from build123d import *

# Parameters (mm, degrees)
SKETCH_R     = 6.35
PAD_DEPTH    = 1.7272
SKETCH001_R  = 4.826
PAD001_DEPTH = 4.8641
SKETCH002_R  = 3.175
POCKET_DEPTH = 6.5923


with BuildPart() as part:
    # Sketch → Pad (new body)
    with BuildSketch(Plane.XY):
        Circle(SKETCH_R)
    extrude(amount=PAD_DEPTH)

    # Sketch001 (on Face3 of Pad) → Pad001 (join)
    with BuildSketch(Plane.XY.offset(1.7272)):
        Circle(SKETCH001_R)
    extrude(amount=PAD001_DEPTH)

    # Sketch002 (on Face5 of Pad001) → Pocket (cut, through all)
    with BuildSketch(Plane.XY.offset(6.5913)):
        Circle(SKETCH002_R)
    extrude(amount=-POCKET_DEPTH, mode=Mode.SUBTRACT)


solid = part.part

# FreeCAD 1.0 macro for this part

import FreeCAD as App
import Part
import Sketcher
Q = App.Units.Quantity

doc = App.newDocument("Part")
body = doc.addObject("PartDesign::Body", "Body")

sketch1 = body.newObject("Sketcher::SketchObject", "Sketch")
sketch1.AttachmentSupport = (doc.getObject("XY_Plane"), [""])
sketch1.MapMode = "FlatFace"
sketch1.addGeometry(Part.Circle(App.Vector(0, 0, 0), App.Vector(0, 0, 1), 6), False)
sketch1.addConstraint(Sketcher.Constraint("Coincident", 0, 3, -1, 1))
sketch1.addConstraint(Sketcher.Constraint("Diameter", 0, Q("0.5 in")))
pad1 = body.newObject("PartDesign::Pad", "Pad")
pad1.Profile = sketch1
pad1.Length = Q("0.068 in")

sketch2 = body.newObject("Sketcher::SketchObject", "Sketch001")
sketch2.AttachmentSupport = (doc.getObject("XY_Plane"), [""])
sketch2.MapMode = "FlatFace"
sketch2.AttachmentOffset = App.Placement(App.Vector(0, 0, 0.068 * 25.4), App.Rotation())
sketch2.addGeometry(Part.Circle(App.Vector(0, 0, 0), App.Vector(0, 0, 1), 4.8), False)
sketch2.addConstraint(Sketcher.Constraint("Coincident", 0, 3, -1, 1))
sketch2.addConstraint(Sketcher.Constraint("Diameter", 0, Q("0.38 in")))
pad2 = body.newObject("PartDesign::Pad", "Pad001")
pad2.Profile = sketch2
pad2.Length = Q("0.1915 in")

sketch3 = body.newObject("Sketcher::SketchObject", "Sketch002")
sketch3.AttachmentSupport = (doc.getObject("XY_Plane"), [""])
sketch3.MapMode = "FlatFace"
sketch3.AttachmentOffset = App.Placement(App.Vector(0, 0, 0.2595 * 25.4), App.Rotation())
sketch3.addGeometry(Part.Circle(App.Vector(0, 0, 0), App.Vector(0, 0, 1), 3.2), False)
sketch3.addConstraint(Sketcher.Constraint("Coincident", 0, 3, -1, 1))
sketch3.addConstraint(Sketcher.Constraint("Diameter", 0, Q("0.25 in")))
pocket1 = body.newObject("PartDesign::Pocket", "Pocket")
pocket1.Profile = sketch3
pocket1.Type = "ThroughAll"

doc.recompute()
